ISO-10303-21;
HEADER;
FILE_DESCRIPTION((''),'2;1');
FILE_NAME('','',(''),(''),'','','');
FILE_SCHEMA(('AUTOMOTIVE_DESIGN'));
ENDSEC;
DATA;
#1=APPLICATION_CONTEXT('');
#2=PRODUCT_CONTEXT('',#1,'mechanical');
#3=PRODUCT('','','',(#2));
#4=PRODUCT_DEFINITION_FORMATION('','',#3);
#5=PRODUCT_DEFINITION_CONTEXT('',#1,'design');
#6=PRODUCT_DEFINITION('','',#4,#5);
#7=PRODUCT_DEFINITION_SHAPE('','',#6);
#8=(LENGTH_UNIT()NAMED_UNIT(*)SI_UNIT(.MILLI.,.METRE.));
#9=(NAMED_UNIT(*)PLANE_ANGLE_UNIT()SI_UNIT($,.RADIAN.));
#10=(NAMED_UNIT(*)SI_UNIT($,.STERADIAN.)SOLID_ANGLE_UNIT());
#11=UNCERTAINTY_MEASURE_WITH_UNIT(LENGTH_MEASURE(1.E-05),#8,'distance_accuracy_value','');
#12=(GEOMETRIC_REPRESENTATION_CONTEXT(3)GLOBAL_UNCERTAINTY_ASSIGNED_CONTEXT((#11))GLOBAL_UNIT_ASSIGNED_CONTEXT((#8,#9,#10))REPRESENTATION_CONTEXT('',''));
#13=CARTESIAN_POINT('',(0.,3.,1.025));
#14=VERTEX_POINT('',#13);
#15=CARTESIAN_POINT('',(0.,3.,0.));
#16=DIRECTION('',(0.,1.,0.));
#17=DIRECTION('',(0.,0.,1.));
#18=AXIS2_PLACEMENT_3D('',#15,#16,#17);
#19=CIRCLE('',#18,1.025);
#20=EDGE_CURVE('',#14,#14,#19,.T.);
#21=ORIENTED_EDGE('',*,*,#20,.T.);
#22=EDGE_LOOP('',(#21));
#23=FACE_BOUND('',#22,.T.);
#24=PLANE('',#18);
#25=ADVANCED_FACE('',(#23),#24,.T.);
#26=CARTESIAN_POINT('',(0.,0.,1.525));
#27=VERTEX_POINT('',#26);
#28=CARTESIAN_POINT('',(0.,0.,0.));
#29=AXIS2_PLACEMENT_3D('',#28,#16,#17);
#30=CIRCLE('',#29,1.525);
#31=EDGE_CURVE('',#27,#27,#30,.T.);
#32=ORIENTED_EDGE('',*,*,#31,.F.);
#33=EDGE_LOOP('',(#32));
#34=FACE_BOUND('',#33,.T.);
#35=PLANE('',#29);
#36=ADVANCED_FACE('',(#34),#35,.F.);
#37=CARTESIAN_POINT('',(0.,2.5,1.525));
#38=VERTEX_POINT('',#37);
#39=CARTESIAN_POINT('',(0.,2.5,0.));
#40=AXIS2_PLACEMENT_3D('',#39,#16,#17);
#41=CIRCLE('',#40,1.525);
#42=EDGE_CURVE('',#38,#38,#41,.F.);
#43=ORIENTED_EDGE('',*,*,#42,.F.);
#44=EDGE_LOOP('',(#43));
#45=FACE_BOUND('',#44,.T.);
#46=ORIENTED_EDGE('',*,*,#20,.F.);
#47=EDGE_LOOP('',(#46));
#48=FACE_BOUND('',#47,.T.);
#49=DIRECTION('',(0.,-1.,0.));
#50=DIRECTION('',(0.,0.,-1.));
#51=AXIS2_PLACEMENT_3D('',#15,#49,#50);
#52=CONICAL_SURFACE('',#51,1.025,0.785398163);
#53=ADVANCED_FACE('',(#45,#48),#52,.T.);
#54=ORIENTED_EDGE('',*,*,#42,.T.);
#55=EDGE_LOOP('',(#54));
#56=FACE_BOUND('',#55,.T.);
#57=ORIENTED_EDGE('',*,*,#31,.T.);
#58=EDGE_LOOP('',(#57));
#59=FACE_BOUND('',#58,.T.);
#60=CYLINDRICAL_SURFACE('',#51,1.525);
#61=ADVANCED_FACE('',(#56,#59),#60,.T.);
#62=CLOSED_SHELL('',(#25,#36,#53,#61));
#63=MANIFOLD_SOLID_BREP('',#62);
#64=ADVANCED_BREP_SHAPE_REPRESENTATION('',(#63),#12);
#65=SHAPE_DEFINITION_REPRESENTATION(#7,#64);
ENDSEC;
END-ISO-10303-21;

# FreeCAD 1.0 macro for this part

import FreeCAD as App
import Part
import Sketcher

V = App.Vector


def edges_at(feature, points):
    """Names of the edges that pass closest to the given points."""
    edges = feature.Shape.Edges
    near = lambda p: min(range(len(edges)), key=lambda i: edges[i].distToShape(Part.Vertex(*p))[0])
    return sorted({f"Edge{near(p) + 1}" for p in points})

doc = App.newDocument("Part")
body = doc.addObject("PartDesign::Body", "Body")

# Sketch on XZ plane
sketch1 = body.newObject("Sketcher::SketchObject", "Sketch")
sketch1.AttachmentSupport = (doc.getObject("XZ_Plane"), [""])
sketch1.MapMode = "FlatFace"
sketch1.addGeometry(Part.Circle(V(0, 0, 0), V(0, 0, 1), 1.5), False)
sketch1.addConstraint([
    Sketcher.Constraint("Coincident", 0, 3, -1, 1),
    Sketcher.Constraint("Diameter", 0, 3.05),
])
pad1 = body.newObject("PartDesign::Pad", "Pad")
pad1.Profile = sketch1
pad1.Length = 3
pad1.Reversed = True
doc.recompute()

chamfer = body.newObject("PartDesign::Chamfer", "Chamfer")
chamfer.Base = (pad1, edges_at(pad1, [(-1.525, 3, 0)]))
chamfer.Size = 0.5

doc.recompute()
